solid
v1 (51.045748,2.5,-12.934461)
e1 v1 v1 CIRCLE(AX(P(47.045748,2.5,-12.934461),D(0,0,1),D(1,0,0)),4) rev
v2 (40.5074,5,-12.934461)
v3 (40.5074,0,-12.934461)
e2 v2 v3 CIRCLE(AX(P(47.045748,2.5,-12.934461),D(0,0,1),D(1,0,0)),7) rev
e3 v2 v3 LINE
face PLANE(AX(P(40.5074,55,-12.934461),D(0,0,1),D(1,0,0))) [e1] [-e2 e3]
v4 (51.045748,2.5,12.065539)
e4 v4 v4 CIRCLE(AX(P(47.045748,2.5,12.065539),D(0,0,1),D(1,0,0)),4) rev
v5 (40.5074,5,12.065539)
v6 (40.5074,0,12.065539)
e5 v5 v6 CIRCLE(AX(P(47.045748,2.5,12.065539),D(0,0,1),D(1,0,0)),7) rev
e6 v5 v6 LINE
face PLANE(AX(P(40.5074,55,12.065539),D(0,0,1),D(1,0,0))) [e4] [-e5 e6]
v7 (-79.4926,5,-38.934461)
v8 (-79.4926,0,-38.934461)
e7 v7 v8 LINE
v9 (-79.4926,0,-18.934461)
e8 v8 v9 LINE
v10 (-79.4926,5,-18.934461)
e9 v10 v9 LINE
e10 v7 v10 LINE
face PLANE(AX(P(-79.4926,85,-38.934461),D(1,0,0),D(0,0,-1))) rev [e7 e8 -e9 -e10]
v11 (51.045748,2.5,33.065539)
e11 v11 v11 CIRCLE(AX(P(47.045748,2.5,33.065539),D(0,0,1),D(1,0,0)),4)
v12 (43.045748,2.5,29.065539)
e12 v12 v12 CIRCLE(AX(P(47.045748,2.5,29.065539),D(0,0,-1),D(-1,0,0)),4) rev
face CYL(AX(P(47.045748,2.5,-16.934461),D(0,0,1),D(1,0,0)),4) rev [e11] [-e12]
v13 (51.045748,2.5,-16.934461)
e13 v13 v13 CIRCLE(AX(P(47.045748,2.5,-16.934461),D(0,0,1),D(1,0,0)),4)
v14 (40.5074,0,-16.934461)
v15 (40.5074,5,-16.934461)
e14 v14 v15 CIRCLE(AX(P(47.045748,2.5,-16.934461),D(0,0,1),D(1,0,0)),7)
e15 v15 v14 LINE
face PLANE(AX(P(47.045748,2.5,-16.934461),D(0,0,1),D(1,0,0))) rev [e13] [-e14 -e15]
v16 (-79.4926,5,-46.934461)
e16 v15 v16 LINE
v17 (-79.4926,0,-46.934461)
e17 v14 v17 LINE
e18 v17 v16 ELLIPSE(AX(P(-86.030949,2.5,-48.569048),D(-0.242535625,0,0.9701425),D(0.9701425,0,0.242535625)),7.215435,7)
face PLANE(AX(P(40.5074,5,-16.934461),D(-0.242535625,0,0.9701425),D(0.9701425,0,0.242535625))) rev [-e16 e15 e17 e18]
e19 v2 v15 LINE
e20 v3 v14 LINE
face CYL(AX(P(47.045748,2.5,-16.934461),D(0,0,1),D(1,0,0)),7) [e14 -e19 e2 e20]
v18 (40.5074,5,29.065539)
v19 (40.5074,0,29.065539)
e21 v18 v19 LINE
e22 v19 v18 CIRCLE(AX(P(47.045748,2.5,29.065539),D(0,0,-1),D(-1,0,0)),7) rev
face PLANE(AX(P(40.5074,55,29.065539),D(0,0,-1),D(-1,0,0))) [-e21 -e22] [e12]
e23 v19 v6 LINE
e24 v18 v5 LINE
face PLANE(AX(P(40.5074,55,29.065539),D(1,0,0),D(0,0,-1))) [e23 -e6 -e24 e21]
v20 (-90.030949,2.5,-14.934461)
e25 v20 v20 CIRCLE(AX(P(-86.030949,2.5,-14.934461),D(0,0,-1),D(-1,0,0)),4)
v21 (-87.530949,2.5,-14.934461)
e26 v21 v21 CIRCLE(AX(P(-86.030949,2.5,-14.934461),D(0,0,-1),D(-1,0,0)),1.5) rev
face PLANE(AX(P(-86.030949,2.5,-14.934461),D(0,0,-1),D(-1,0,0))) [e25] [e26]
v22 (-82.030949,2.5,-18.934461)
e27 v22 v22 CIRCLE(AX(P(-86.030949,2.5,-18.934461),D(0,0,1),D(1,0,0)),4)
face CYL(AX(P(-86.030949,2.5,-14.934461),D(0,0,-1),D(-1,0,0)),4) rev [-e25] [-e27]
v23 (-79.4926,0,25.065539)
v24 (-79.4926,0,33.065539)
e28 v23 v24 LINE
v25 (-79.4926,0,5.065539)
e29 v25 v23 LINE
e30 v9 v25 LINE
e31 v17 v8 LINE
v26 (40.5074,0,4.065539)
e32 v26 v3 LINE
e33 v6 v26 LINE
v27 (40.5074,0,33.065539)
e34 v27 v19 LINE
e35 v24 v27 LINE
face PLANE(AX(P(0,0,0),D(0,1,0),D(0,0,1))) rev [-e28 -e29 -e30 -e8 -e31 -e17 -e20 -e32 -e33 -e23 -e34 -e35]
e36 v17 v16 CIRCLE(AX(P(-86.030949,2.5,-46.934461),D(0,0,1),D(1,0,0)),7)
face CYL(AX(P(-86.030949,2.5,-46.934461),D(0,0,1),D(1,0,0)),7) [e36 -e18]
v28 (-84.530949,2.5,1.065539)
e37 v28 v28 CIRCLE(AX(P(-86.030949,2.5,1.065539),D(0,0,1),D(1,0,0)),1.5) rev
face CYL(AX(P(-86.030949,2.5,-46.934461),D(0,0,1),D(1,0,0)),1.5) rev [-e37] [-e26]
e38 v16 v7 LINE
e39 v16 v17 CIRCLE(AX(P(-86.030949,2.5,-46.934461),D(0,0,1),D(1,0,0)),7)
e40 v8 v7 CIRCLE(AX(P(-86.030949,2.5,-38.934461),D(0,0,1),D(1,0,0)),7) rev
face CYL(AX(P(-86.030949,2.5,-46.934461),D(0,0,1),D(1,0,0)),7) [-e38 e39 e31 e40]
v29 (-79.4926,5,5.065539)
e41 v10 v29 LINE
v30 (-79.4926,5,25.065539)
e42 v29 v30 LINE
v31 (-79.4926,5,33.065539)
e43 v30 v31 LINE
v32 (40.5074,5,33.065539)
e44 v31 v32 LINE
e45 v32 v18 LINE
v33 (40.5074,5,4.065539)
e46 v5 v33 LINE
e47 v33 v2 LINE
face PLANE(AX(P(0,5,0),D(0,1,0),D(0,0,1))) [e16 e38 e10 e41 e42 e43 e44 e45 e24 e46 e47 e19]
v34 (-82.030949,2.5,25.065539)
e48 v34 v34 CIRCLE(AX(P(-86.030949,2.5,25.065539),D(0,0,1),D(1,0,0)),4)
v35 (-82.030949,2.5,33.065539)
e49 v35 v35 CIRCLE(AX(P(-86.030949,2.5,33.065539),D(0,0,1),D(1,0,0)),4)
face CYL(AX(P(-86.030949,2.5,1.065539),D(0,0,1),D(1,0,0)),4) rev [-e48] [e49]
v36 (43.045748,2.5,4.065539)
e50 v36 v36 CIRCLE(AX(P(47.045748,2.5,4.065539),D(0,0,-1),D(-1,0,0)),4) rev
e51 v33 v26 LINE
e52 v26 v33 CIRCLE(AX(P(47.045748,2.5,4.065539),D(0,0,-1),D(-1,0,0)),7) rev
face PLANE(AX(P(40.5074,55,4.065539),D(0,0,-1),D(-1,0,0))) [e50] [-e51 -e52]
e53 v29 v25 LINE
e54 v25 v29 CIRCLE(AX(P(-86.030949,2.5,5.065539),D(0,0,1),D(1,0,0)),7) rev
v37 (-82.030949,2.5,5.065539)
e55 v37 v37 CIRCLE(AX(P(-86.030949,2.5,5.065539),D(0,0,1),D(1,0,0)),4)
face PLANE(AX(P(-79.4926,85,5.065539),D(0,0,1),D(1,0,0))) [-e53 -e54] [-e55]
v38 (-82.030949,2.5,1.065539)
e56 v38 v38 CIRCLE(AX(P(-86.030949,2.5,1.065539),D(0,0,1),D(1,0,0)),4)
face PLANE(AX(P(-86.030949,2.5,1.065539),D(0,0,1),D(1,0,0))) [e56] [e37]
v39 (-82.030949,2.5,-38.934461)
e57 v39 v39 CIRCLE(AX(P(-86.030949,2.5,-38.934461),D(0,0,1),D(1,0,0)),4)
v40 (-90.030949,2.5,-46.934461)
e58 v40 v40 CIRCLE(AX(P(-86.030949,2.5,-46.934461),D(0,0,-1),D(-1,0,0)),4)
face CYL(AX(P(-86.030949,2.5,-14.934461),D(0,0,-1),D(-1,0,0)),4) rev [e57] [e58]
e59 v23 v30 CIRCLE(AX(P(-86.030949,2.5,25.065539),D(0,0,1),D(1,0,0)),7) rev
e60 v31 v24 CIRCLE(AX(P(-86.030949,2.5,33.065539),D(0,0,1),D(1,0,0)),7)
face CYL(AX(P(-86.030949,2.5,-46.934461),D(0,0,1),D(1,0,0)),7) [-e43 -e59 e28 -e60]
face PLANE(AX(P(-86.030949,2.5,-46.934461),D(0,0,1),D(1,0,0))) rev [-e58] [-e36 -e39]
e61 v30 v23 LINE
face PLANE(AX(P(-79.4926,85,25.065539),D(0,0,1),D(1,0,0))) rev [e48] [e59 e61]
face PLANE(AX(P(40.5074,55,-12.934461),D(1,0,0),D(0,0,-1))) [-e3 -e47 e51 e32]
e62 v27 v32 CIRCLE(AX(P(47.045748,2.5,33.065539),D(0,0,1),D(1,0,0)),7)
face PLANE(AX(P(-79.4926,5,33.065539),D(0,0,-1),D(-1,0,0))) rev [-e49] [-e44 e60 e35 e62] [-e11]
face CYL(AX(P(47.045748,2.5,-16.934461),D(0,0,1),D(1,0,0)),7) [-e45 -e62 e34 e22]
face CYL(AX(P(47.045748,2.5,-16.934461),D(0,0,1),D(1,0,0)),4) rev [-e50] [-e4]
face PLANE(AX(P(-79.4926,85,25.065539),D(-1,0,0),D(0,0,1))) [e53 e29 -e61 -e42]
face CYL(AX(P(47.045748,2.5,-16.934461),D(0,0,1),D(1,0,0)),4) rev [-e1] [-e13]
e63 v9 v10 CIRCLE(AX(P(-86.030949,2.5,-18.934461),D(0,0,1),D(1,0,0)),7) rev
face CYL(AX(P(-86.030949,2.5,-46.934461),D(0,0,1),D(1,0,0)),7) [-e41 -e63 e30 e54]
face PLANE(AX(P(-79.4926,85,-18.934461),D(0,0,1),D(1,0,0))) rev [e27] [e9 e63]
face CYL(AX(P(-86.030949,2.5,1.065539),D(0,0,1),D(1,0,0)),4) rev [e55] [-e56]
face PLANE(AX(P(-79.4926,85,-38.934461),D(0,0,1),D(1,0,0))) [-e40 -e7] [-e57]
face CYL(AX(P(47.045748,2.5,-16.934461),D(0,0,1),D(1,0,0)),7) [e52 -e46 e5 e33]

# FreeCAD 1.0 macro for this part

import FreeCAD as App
import Part
import Sketcher

doc = App.newDocument("Part")
body = doc.addObject("PartDesign::Body", "Body")

# Sketch on XZ plane
sketch1 = doc.addObject("Sketcher::SketchObject", "Sketch")
body.addObject(sketch1)
sketch1.AttachmentSupport = (doc.XZ_Plane, [""])
sketch1.MapMode = "FlatFace"
sketch1.addGeometry([
    Part.LineSegment(App.Vector(-79, -47, 0), App.Vector(-79, 33, 0)),
    Part.LineSegment(App.Vector(-79, 33, 0), App.Vector(41, 33, 0)),
    Part.LineSegment(App.Vector(41, 33, 0), App.Vector(41, -17, 0)),
    Part.LineSegment(App.Vector(41, -17, 0), App.Vector(-79, -47, 0)),
], False)
sketch1.addConstraint([
    Sketcher.Constraint("Coincident", 0, 2, 1, 1),
    Sketcher.Constraint("Coincident", 1, 2, 2, 1),
    Sketcher.Constraint("Coincident", 2, 2, 3, 1),
    Sketcher.Constraint("Coincident", 3, 2, 0, 1),
    Sketcher.Constraint("Vertical", 0),
    Sketcher.Constraint("Horizontal", 1),
    Sketcher.Constraint("Vertical", 2),
    Sketcher.Constraint("DistanceX", 1, 1, 1, 2, 120.0),
    Sketcher.Constraint("DistanceY", 0, 1, 0, 2, 80.0),
    Sketcher.Constraint("DistanceY", 2, 2, 2, 1, 50.0),
    Sketcher.Constraint("DistanceX", 0, 2, -1, 1, 79.4926),
    Sketcher.Constraint("DistanceY", -1, 1, 0, 2, 33.065539),
])
pad1 = doc.addObject("PartDesign::Pad", "Pad")
body.addObject(pad1)
pad1.Profile = sketch1
pad1.Length = 5
pad1.Reversed = True

# Sketch on XY plane
sketch2 = doc.addObject("Sketcher::SketchObject", "Sketch001")
body.addObject(sketch2)
sketch2.AttachmentSupport = (doc.XY_Plane, [""])
sketch2.MapMode = "FlatFace"
sketch2.AttachmentOffset = App.Placement(App.Vector(0, 0, 33.065539), App.Rotation())
sketch2.addGeometry([
    Part.Circle(App.Vector(-86, 2.5, 0), App.Vector(0, 0, 1), 7),
    Part.Circle(App.Vector(-86, 2.5, 0), App.Vector(0, 0, 1), 1.5),
], False)
sketch2.addConstraint([
    Sketcher.Constraint("Coincident", 1, 3, 0, 3),
    Sketcher.Constraint("Diameter", 0, 14.0),
    Sketcher.Constraint("Diameter", 1, 3.0),
    Sketcher.Constraint("DistanceY", -1, 1, 0, 3, 2.5),
    Sketcher.Constraint("DistanceX", 0, 3, -1, 1, 86.030949),
])
pad2 = doc.addObject("PartDesign::Pad", "Pad001")
body.addObject(pad2)
pad2.Profile = sketch2
pad2.Length = 80
pad2.Reversed = True

# Sketch on XZ plane
sketch3 = doc.addObject("Sketcher::SketchObject", "Sketch002")
body.addObject(sketch3)
sketch3.AttachmentSupport = (doc.XZ_Plane, [""])
sketch3.MapMode = "FlatFace"
sketch3.AttachmentOffset = App.Placement(App.Vector(0, 0, -5), App.Rotation())
sketch3.addGeometry([
    Part.LineSegment(App.Vector(-93, -39, 0), App.Vector(-93, -19, 0)),  # 0
    Part.LineSegment(App.Vector(-93, -19, 0), App.Vector(-79, -19, 0)),  # 1
    Part.LineSegment(App.Vector(-79, -19, 0), App.Vector(-79, -39, 0)),  # 2
    Part.LineSegment(App.Vector(-79, -39, 0), App.Vector(-93, -39, 0)),  # 3
    Part.LineSegment(App.Vector(-93, 5, 0), App.Vector(-93, 25, 0)),  # 4
    Part.LineSegment(App.Vector(-93, 25, 0), App.Vector(-79, 25, 0)),  # 5
    Part.LineSegment(App.Vector(-79, 25, 0), App.Vector(-79, 5, 0)),  # 6
    Part.LineSegment(App.Vector(-79, 5, 0), App.Vector(-93, 5, 0)),  # 7
], False)
sketch3.addConstraint([
    Sketcher.Constraint("Coincident", 0, 2, 1, 1),
    Sketcher.Constraint("Coincident", 1, 2, 2, 1),
    Sketcher.Constraint("Coincident", 2, 2, 3, 1),
    Sketcher.Constraint("Coincident", 3, 2, 0, 1),
    Sketcher.Constraint("Coincident", 4, 2, 5, 1),
    Sketcher.Constraint("Coincident", 5, 2, 6, 1),
    Sketcher.Constraint("Coincident", 6, 2, 7, 1),
    Sketcher.Constraint("Coincident", 7, 2, 4, 1),
    Sketcher.Constraint("Vertical", 0),
    Sketcher.Constraint("Horizontal", 1),
    Sketcher.Constraint("Vertical", 2),
    Sketcher.Constraint("Horizontal", 3),
    Sketcher.Constraint("Vertical", 4),
    Sketcher.Constraint("Horizontal", 5),
    Sketcher.Constraint("Vertical", 6),
    Sketcher.Constraint("Horizontal", 7),
    Sketcher.Constraint("Vertical", 3, 2, 4, 2),
    Sketcher.Constraint("Vertical", 2, 2, 5, 2),
    Sketcher.Constraint("Equal", 2, 4),
    Sketcher.Constraint("DistanceY", 0, 1, 0, 2, 20.0),
    Sketcher.Constraint("DistanceY", 0, 2, 4, 2, 44.0),
    Sketcher.Constraint("DistanceX", 1, 1, 1, 2, 13.538348),
    Sketcher.Constraint("DistanceX", 1, 2, -1, 1, 79.4926),
    Sketcher.Constraint("DistanceY", 0, 2, -1, 1, 18.934461),
])
pocket1 = doc.addObject("PartDesign::Pocket", "Pocket")
body.addObject(pocket1)
pocket1.Profile = sketch3
pocket1.Type = "ThroughAll"
pocket1.Midplane = True

# Sketch on XY plane
sketch4 = doc.addObject("Sketcher::SketchObject", "Sketch003")
body.addObject(sketch4)
sketch4.AttachmentSupport = (doc.XY_Plane, [""])
sketch4.MapMode = "FlatFace"
sketch4.AttachmentOffset = App.Placement(App.Vector(0, 0, 33.065539), App.Rotation())
sketch4.addGeometry([
    Part.Circle(App.Vector(47, 2.5, 0), App.Vector(0, 0, 1), 7),
    Part.Circle(App.Vector(47, 2.5, 0), App.Vector(0, 0, 1), 4),
], False)
sketch4.addConstraint([
    Sketcher.Constraint("Coincident", 1, 3, 0, 3),
    Sketcher.Constraint("Diameter", 0, 14.0),
    Sketcher.Constraint("Diameter", 1, 8.0),
    Sketcher.Constraint("DistanceY", -1, 1, 0, 3, 2.5),
    Sketcher.Constraint("DistanceX", -1, 1, 0, 3, 47.045748),
])
pad3 = doc.addObject("PartDesign::Pad", "Pad002")
body.addObject(pad3)
pad3.Profile = sketch4
pad3.Length = 50
pad3.Reversed = True

# Sketch on XZ plane
sketch5 = doc.addObject("Sketcher::SketchObject", "Sketch004")
body.addObject(sketch5)
sketch5.AttachmentSupport = (doc.XZ_Plane, [""])
sketch5.MapMode = "FlatFace"
sketch5.AttachmentOffset = App.Placement(App.Vector(0, 0, -5), App.Rotation())
sketch5.addGeometry([
    Part.LineSegment(App.Vector(41, -13, 0), App.Vector(41, 4, 0)),  # 0
    Part.LineSegment(App.Vector(41, 4, 0), App.Vector(54, 4, 0)),  # 1
    Part.LineSegment(App.Vector(54, 4, 0), App.Vector(54, -13, 0)),  # 2
    Part.LineSegment(App.Vector(54, -13, 0), App.Vector(41, -13, 0)),  # 3
    Part.LineSegment(App.Vector(41, 12, 0), App.Vector(41, 29, 0)),  # 4
    Part.LineSegment(App.Vector(41, 29, 0), App.Vector(54, 29, 0)),  # 5
    Part.LineSegment(App.Vector(54, 29, 0), App.Vector(54, 12, 0)),  # 6
    Part.LineSegment(App.Vector(54, 12, 0), App.Vector(41, 12, 0)),  # 7
], False)
sketch5.addConstraint([
    Sketcher.Constraint("Coincident", 0, 2, 1, 1),
    Sketcher.Constraint("Coincident", 1, 2, 2, 1),
    Sketcher.Constraint("Coincident", 2, 2, 3, 1),
    Sketcher.Constraint("Coincident", 3, 2, 0, 1),
    Sketcher.Constraint("Coincident", 4, 2, 5, 1),
    Sketcher.Constraint("Coincident", 5, 2, 6, 1),
    Sketcher.Constraint("Coincident", 6, 2, 7, 1),
    Sketcher.Constraint("Coincident", 7, 2, 4, 1),
    Sketcher.Constraint("Vertical", 0),
    Sketcher.Constraint("Horizontal", 1),
    Sketcher.Constraint("Vertical", 2),
    Sketcher.Constraint("Horizontal", 3),
    Sketcher.Constraint("Vertical", 4),
    Sketcher.Constraint("Horizontal", 5),
    Sketcher.Constraint("Vertical", 6),
    Sketcher.Constraint("Horizontal", 7),
    Sketcher.Constraint("Vertical", 3, 2, 4, 2),
    Sketcher.Constraint("Vertical", 2, 2, 5, 2),
    Sketcher.Constraint("Equal", 2, 4),
    Sketcher.Constraint("DistanceY", 0, 1, 0, 2, 17.0),
    Sketcher.Constraint("DistanceY", 0, 2, 4, 2, 25.0),
    Sketcher.Constraint("DistanceX", 1, 1, 1, 2, 13.538348),
    Sketcher.Constraint("DistanceX", -1, 1, 0, 2, 40.5074),
    Sketcher.Constraint("DistanceY", -1, 1, 0, 2, 4.065539),
])
pocket2 = doc.addObject("PartDesign::Pocket", "Pocket001")
body.addObject(pocket2)
pocket2.Profile = sketch5
pocket2.Type = "ThroughAll"
pocket2.Midplane = True

# Sketch on XY plane
sketch6 = doc.addObject("Sketcher::SketchObject", "Sketch005")
body.addObject(sketch6)
sketch6.AttachmentSupport = (doc.XY_Plane, [""])
sketch6.MapMode = "FlatFace"
sketch6.AttachmentOffset = App.Placement(App.Vector(0, 0, 33.065539), App.Rotation())
sketch6.addGeometry(Part.Circle(App.Vector(-86, 2.5, 0), App.Vector(0, 0, 1), 4), False)
sketch6.addConstraint([
    Sketcher.Constraint("Diameter", 0, 8.0),
    Sketcher.Constraint("DistanceY", -1, 1, 0, 3, 2.5),
    Sketcher.Constraint("DistanceX", 0, 3, -1, 1, 86.030949),
])
pocket3 = doc.addObject("PartDesign::Pocket", "Pocket002")
body.addObject(pocket3)
pocket3.Profile = sketch6
pocket3.Length = 32

# Sketch on XY plane
sketch7 = doc.addObject("Sketcher::SketchObject", "Sketch006")
body.addObject(sketch7)
sketch7.AttachmentSupport = (doc.XY_Plane, [""])
sketch7.MapMode = "FlatFace"
sketch7.AttachmentOffset = App.Placement(App.Vector(0, 0, -14.934461), App.Rotation())
sketch7.addGeometry(Part.Circle(App.Vector(-86, 2.5, 0), App.Vector(0, 0, 1), 4), False)
sketch7.addConstraint([
    Sketcher.Constraint("Diameter", 0, 8.0),
    Sketcher.Constraint("DistanceY", -1, 1, 0, 3, 2.5),
    Sketcher.Constraint("DistanceX", 0, 3, -1, 1, 86.030949),
])
pocket4 = doc.addObject("PartDesign::Pocket", "Pocket003")
body.addObject(pocket4)
pocket4.Profile = sketch7
pocket4.Length = 32

doc.recompute()
